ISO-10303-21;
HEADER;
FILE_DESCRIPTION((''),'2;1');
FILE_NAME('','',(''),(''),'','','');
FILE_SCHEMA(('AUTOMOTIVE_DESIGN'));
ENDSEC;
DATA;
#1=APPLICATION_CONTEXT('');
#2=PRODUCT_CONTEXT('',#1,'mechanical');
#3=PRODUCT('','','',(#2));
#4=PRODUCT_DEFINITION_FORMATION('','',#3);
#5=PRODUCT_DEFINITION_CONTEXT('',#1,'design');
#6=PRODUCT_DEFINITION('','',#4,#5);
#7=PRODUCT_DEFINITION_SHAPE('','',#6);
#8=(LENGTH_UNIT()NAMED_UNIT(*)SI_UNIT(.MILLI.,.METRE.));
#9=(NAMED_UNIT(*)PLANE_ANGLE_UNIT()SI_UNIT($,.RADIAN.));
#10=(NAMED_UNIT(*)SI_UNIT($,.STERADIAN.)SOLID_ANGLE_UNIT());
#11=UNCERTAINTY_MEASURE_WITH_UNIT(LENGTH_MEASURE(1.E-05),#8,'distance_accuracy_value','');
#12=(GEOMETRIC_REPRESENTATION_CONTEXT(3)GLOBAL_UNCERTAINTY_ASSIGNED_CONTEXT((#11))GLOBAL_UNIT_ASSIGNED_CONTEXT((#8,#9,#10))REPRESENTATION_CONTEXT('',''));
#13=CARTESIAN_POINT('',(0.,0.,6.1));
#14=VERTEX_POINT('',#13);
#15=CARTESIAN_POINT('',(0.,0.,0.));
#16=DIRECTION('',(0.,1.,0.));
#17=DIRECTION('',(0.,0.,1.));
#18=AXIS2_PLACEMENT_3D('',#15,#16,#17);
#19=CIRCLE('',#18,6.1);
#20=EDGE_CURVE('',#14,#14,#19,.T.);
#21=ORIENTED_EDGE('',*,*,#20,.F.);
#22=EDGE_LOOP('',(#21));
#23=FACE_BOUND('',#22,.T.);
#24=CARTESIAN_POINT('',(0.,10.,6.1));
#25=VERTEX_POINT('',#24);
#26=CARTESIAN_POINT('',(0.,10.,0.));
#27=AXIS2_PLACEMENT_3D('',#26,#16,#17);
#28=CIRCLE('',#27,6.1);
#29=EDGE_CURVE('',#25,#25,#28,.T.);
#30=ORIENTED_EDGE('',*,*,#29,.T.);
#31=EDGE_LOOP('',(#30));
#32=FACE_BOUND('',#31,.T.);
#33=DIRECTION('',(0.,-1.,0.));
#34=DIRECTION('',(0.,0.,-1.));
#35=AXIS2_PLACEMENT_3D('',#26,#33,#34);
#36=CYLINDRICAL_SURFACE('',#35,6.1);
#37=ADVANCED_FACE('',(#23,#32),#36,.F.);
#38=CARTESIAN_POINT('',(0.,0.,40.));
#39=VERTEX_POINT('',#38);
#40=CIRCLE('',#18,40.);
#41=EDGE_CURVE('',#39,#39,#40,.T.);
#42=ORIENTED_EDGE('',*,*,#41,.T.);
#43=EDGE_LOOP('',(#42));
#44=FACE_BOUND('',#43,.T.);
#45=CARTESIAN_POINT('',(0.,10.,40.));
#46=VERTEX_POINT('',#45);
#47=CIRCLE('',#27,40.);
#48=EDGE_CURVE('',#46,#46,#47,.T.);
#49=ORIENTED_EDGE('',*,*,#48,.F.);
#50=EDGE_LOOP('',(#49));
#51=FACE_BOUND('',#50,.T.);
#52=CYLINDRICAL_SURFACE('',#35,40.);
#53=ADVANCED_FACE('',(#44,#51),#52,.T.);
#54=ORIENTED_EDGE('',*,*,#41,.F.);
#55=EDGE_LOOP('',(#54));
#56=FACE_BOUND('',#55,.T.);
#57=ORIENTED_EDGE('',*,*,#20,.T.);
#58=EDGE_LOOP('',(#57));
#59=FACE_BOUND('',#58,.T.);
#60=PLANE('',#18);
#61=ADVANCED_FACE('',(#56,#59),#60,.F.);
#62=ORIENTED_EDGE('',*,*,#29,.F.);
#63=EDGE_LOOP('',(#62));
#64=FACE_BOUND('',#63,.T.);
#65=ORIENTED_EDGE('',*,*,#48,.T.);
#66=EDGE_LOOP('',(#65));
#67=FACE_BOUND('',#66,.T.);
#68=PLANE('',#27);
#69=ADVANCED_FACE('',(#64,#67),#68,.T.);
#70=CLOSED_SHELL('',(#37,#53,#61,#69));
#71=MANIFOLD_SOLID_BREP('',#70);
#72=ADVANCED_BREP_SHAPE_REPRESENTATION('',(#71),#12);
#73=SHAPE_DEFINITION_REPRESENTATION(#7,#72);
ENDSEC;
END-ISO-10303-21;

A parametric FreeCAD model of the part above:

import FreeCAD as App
import Part
import Sketcher
from FreeCAD import Vector

doc = App.newDocument("Part")
body = doc.addObject("PartDesign::Body", "Body")

sketch1 = doc.addObject("Sketcher::SketchObject", "Sketch")
body.addObject(sketch1)
sketch1.AttachmentSupport = (doc.XZ_Plane, [""])
sketch1.MapMode = "FlatFace"
sketch1.addGeometry(Part.Circle(Vector(0, 0, 0), Vector(0, 0, 1), 40), False)
sketch1.addGeometry(Part.Circle(Vector(0, 0, 0), Vector(0, 0, 1), 6), False)
sketch1.addConstraint(Sketcher.Constraint("Coincident", 0, 3, -1, 1))
sketch1.addConstraint(Sketcher.Constraint("Coincident", 1, 3, -1, 1))
sketch1.addConstraint(Sketcher.Constraint("Diameter", 0, 80.0))
sketch1.addConstraint(Sketcher.Constraint("Diameter", 1, 12.2))
pad1 = doc.addObject("PartDesign::Pad", "Pad")
body.addObject(pad1)
pad1.Profile = sketch1
pad1.Length = 10
pad1.Reversed = True

doc.recompute()
